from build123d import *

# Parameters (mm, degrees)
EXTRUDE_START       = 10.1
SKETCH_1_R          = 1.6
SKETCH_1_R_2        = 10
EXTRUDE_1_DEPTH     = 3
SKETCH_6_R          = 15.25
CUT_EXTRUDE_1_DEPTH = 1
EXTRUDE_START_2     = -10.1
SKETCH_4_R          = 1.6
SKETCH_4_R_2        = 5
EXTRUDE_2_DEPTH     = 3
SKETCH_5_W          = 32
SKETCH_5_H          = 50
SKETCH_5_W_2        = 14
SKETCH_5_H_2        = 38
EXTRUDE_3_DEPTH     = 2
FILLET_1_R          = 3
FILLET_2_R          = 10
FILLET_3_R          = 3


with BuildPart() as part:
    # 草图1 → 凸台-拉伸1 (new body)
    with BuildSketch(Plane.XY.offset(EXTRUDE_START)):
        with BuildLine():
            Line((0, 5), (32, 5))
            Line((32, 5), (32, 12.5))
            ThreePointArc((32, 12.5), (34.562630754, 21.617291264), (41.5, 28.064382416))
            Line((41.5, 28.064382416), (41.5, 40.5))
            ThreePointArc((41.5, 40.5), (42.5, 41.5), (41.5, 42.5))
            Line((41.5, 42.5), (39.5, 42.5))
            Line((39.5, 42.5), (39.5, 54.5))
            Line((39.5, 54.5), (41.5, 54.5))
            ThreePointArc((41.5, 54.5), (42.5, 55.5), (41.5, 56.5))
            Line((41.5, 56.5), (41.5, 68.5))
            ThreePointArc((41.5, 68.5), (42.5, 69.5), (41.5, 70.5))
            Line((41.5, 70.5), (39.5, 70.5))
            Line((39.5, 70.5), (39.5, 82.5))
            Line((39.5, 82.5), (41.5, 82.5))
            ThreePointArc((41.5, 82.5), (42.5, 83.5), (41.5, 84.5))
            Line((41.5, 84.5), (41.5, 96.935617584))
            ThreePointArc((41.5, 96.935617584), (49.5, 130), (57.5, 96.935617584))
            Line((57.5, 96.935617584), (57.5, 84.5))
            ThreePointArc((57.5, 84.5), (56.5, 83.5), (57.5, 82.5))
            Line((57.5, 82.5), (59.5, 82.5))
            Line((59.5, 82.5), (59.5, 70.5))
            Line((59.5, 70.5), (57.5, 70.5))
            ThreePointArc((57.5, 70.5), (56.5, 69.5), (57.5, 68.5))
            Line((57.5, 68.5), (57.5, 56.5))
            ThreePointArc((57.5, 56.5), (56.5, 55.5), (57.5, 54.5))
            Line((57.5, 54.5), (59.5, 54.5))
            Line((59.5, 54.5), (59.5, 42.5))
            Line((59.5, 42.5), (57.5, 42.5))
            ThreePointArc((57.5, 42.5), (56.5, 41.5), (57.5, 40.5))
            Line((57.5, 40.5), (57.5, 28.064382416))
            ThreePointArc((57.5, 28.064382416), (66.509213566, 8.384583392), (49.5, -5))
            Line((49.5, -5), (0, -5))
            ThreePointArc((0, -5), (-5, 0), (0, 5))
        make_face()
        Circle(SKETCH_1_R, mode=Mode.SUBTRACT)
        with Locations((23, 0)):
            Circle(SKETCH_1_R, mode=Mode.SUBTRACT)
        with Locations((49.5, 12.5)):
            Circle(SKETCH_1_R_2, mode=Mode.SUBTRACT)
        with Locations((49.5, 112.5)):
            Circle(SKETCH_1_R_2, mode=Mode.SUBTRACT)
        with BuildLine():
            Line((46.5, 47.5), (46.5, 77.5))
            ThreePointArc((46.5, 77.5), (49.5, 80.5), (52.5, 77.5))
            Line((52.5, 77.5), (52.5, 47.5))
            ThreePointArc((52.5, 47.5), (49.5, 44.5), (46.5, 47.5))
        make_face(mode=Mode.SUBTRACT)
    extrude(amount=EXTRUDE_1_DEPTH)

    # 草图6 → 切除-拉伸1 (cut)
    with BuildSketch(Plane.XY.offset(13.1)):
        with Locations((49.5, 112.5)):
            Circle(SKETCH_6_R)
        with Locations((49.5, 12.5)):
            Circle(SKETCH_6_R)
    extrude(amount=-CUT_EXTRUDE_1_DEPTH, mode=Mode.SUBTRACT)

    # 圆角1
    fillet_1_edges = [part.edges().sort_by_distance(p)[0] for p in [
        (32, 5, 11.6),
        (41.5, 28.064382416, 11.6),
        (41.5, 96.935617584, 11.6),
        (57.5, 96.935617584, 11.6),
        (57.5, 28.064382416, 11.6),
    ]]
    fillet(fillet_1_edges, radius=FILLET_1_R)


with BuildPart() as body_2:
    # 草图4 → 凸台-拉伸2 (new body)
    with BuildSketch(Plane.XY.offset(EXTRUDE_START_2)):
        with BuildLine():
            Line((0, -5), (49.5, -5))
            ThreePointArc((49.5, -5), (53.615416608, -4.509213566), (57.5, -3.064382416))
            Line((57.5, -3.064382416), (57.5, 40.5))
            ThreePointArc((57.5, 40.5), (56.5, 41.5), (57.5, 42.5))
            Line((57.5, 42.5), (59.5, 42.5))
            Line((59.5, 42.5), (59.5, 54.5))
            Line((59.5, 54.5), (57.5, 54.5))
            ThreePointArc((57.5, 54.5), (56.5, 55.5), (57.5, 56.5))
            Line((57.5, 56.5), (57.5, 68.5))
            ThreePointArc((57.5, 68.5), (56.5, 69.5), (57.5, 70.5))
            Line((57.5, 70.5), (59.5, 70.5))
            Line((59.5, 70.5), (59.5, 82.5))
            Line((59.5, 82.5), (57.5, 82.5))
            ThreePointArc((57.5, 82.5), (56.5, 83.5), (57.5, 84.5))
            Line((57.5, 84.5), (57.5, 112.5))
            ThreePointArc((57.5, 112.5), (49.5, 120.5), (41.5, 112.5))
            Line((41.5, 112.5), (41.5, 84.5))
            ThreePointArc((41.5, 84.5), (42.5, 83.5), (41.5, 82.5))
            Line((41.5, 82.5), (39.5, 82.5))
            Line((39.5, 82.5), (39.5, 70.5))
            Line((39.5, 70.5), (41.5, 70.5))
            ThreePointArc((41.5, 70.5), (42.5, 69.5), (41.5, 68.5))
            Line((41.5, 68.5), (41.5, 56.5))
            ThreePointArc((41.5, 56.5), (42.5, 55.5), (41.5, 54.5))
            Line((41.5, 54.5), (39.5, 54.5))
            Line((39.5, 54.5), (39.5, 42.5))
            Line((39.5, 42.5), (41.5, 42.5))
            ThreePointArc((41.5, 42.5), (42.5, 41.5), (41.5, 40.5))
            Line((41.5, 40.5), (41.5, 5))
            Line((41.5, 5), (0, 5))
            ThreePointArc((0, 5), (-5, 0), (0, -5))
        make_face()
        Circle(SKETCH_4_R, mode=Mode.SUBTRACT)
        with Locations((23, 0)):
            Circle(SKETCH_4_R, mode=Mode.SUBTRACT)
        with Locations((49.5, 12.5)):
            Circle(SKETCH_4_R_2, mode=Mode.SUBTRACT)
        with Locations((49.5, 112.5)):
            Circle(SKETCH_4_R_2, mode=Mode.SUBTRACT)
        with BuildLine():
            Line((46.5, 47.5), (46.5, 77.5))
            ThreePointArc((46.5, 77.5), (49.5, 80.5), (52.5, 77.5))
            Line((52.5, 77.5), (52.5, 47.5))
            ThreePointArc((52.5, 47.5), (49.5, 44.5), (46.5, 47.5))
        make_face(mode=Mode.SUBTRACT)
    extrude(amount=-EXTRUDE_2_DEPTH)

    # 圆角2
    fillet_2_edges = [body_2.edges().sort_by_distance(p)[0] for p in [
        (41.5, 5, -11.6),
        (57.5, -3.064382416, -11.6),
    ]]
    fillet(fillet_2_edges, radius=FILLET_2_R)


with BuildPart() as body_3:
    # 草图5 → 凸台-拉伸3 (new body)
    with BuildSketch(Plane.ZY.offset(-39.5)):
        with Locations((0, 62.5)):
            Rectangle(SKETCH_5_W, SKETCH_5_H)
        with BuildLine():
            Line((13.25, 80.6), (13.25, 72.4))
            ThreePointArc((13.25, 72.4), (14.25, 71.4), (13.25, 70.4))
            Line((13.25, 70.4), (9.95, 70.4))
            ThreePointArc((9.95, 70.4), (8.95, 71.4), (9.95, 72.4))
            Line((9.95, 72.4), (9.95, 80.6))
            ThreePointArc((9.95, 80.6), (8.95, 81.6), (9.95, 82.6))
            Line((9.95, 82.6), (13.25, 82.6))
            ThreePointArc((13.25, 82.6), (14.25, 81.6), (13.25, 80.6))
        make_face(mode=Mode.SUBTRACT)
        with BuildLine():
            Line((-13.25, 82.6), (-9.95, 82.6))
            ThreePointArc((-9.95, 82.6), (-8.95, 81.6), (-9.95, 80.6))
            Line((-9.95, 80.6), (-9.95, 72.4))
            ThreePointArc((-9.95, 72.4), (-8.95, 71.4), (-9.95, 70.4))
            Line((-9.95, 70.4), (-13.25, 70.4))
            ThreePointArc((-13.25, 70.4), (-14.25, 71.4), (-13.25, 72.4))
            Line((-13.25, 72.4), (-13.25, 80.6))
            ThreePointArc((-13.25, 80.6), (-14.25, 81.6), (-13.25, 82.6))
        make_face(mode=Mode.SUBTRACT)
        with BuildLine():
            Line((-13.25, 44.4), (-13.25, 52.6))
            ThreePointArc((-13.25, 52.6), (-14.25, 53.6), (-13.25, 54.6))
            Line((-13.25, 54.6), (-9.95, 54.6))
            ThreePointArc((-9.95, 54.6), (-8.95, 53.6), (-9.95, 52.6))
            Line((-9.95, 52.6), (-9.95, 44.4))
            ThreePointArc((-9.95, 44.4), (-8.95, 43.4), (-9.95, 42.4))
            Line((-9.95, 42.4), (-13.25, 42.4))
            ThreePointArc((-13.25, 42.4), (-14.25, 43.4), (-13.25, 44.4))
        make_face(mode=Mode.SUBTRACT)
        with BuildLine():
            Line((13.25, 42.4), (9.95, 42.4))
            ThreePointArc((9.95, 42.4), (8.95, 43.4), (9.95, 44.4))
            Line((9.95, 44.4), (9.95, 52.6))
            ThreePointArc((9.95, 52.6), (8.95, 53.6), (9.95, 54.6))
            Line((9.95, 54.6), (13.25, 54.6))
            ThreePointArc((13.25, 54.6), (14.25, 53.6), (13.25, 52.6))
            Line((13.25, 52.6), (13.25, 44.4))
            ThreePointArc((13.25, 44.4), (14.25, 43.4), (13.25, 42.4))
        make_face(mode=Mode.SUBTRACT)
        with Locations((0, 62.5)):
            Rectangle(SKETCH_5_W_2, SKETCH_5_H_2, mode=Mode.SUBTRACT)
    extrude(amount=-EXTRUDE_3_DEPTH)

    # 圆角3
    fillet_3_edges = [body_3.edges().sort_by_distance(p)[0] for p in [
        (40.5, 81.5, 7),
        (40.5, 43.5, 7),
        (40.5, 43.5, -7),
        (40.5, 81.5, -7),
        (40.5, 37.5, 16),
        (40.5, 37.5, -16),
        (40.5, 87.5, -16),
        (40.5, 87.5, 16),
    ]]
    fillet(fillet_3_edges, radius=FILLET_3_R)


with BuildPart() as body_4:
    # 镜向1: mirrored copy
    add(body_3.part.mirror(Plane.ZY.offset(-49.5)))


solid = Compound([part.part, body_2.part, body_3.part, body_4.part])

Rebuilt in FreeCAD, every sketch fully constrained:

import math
import FreeCAD as App
import Part
import Sketcher
from FreeCAD import Vector


def edges_at(feature, points):
    """Names of the edges that pass closest to the given points."""
    edges = feature.Shape.Edges
    near = lambda p: min(range(len(edges)), key=lambda i: edges[i].distToShape(Part.Vertex(*p))[0])
    return sorted({f"Edge{near(p) + 1}" for p in points})

doc = App.newDocument("Part")
params = doc.addObject("Spreadsheet::Sheet", "Params")
for row, (alias, value) in enumerate([
    ("sketch1_diameter", "20 mm"),
    ("sketch1_radius", "5 mm"),
    ("sketch1_radius2", "1 mm"),
    ("sketch1_radius3", "3 mm"),
    ("sketch1_diameter2", "3.2 mm"),
    ("pad1_length", "3 mm"),
    ("sketch2_diameter", "30.5 mm"),
    ("pocket1_length", "1 mm"),
    ("fillet_radius", "3 mm"),
    ("sketch3_diameter", "10 mm"),
    ("sketch3_radius", "1 mm"),
    ("sketch3_radius2", "8 mm"),
    ("sketch3_radius3", "3 mm"),
    ("sketch3_diameter2", "3.2 mm"),
    ("pad2_length", "3 mm"),
    ("fillet2_radius", "10 mm"),
    ("sketch4_radius", "1 mm"),
    ("sketch4_width", "50 mm"),
    ("sketch4_width2", "38 mm"),
    ("sketch4_height", "32 mm"),
    ("sketch4_height2", "14 mm"),
    ("pad3_length", "2 mm"),
    ("fillet3_radius", "3 mm"),
], start=1):
    params.set(f"A{row}", alias)
    params.set(f"B{row}", "=" + value)
    params.setAlias(f"B{row}", alias)

body = doc.addObject("PartDesign::Body", "Body")

sketch1 = body.newObject("Sketcher::SketchObject", "Sketch")
sketch1.AttachmentSupport = (doc.getObject("XY_Plane"), [""])
sketch1.MapMode = "FlatFace"
sketch1.AttachmentOffset = App.Placement(Vector(0, 0, 10.1), App.Rotation())
sketch1.addGeometry([
    Part.LineSegment(Vector(32, 5, 0), Vector(0, 5, 0)),
    Part.ArcOfCircle(Part.Circle(Vector(0, 0, 0), Vector(0, 0, 1), 5), math.radians(90), math.radians(270)),
    Part.LineSegment(Vector(0, -5, 0), Vector(49.5, -5, 0)),
    Part.ArcOfCircle(Part.Circle(Vector(49.5, 12.5, 0), Vector(0, 0, 1), 17.5), math.radians(-90), math.radians(63)),
    Part.LineSegment(Vector(57.5, 28.1, 0), Vector(57.5, 40.5, 0)),
    Part.ArcOfCircle(Part.Circle(Vector(57.5, 41.5, 0), Vector(0, 0, 1), 1), math.radians(90), math.radians(270)),
    Part.LineSegment(Vector(57.5, 42.5, 0), Vector(59.5, 42.5, 0)),
    Part.LineSegment(Vector(59.5, 42.5, 0), Vector(59.5, 54.5, 0)),
    Part.LineSegment(Vector(59.5, 54.5, 0), Vector(57.5, 54.5, 0)),
    Part.ArcOfCircle(Part.Circle(Vector(57.5, 55.5, 0), Vector(0, 0, 1), 1), math.radians(90), math.radians(270)),
    Part.LineSegment(Vector(57.5, 56.5, 0), Vector(57.5, 68.5, 0)),
    Part.ArcOfCircle(Part.Circle(Vector(57.5, 69.5, 0), Vector(0, 0, 1), 1), math.radians(90), math.radians(270)),
    Part.LineSegment(Vector(57.5, 70.5, 0), Vector(59.5, 70.5, 0)),
    Part.LineSegment(Vector(59.5, 70.5, 0), Vector(59.5, 82.5, 0)),
    Part.LineSegment(Vector(59.5, 82.5, 0), Vector(57.5, 82.5, 0)),
    Part.ArcOfCircle(Part.Circle(Vector(57.5, 83.5, 0), Vector(0, 0, 1), 1), math.radians(90), math.radians(270)),
    Part.LineSegment(Vector(57.5, 84.5, 0), Vector(57.5, 96.9, 0)),
    Part.ArcOfCircle(Part.Circle(Vector(49.5, 112.5, 0), Vector(0, 0, 1), 17.5), math.radians(-63), math.radians(243)),
    Part.LineSegment(Vector(41.5, 96.9, 0), Vector(41.5, 84.5, 0)),
    Part.ArcOfCircle(Part.Circle(Vector(41.5, 83.5, 0), Vector(0, 0, 1), 1), math.radians(-90), math.radians(90)),
    Part.LineSegment(Vector(41.5, 82.5, 0), Vector(39.5, 82.5, 0)),
    Part.LineSegment(Vector(39.5, 82.5, 0), Vector(39.5, 70.5, 0)),
    Part.LineSegment(Vector(39.5, 70.5, 0), Vector(41.5, 70.5, 0)),
    Part.ArcOfCircle(Part.Circle(Vector(41.5, 69.5, 0), Vector(0, 0, 1), 1), math.radians(-90), math.radians(90)),
    Part.LineSegment(Vector(41.5, 68.5, 0), Vector(41.5, 56.5, 0)),
    Part.ArcOfCircle(Part.Circle(Vector(41.5, 55.5, 0), Vector(0, 0, 1), 1), math.radians(-90), math.radians(90)),
    Part.LineSegment(Vector(41.5, 54.5, 0), Vector(39.5, 54.5, 0)),
    Part.LineSegment(Vector(39.5, 54.5, 0), Vector(39.5, 42.5, 0)),
    Part.LineSegment(Vector(39.5, 42.5, 0), Vector(41.5, 42.5, 0)),
    Part.ArcOfCircle(Part.Circle(Vector(41.5, 41.5, 0), Vector(0, 0, 1), 1), math.radians(-90), math.radians(90)),
    Part.LineSegment(Vector(41.5, 40.5, 0), Vector(41.5, 28.1, 0)),
    Part.ArcOfCircle(Part.Circle(Vector(49.5, 12.5, 0), Vector(0, 0, 1), 17.5), math.radians(117), math.radians(180)),
    Part.LineSegment(Vector(32, 12.5, 0), Vector(32, 5, 0)),
    Part.Circle(Vector(49.5, 12.5, 0), Vector(0, 0, 1), 10),
    Part.Circle(Vector(23, 0, 0), Vector(0, 0, 1), 1.6),
    Part.Circle(Vector(0, 0, 0), Vector(0, 0, 1), 1.6),
    Part.LineSegment(Vector(46.5, 47.5, 0), Vector(46.5, 77.5, 0)),
    Part.ArcOfCircle(Part.Circle(Vector(49.5, 77.5, 0), Vector(0, 0, 1), 3), math.radians(0), math.radians(180)),
    Part.LineSegment(Vector(52.5, 77.5, 0), Vector(52.5, 47.5, 0)),
    Part.ArcOfCircle(Part.Circle(Vector(49.5, 47.5, 0), Vector(0, 0, 1), 3), math.radians(180), math.radians(360)),
    Part.Circle(Vector(49.5, 112.5, 0), Vector(0, 0, 1), 10),
], False)
sketch1.addConstraint([
    Sketcher.Constraint("Tangent", 0, 2, 1, 1),
    Sketcher.Constraint("Tangent", 1, 2, 2, 1),
    Sketcher.Constraint("Tangent", 2, 2, 3, 1),
    Sketcher.Constraint("Coincident", 3, 2, 4, 1),
    Sketcher.Constraint("Coincident", 4, 2, 5, 2),
    Sketcher.Constraint("Tangent", 5, 1, 6, 1),
    Sketcher.Constraint("Coincident", 6, 2, 7, 1),
    Sketcher.Constraint("Coincident", 7, 2, 8, 1),
    Sketcher.Constraint("Tangent", 8, 2, 9, 2),
    Sketcher.Constraint("Coincident", 9, 1, 10, 1),
    Sketcher.Constraint("Coincident", 10, 2, 11, 2),
    Sketcher.Constraint("Tangent", 11, 1, 12, 1),
    Sketcher.Constraint("Coincident", 12, 2, 13, 1),
    Sketcher.Constraint("Coincident", 13, 2, 14, 1),
    Sketcher.Constraint("Tangent", 14, 2, 15, 2),
    Sketcher.Constraint("Coincident", 15, 1, 16, 1),
    Sketcher.Constraint("Coincident", 16, 2, 17, 1),
    Sketcher.Constraint("Coincident", 17, 2, 18, 1),
    Sketcher.Constraint("Coincident", 18, 2, 19, 2),
    Sketcher.Constraint("Tangent", 19, 1, 20, 1),
    Sketcher.Constraint("Coincident", 20, 2, 21, 1),
    Sketcher.Constraint("Coincident", 21, 2, 22, 1),
    Sketcher.Constraint("Tangent", 22, 2, 23, 2),
    Sketcher.Constraint("Coincident", 23, 1, 24, 1),
    Sketcher.Constraint("Coincident", 24, 2, 25, 2),
    Sketcher.Constraint("Tangent", 25, 1, 26, 1),
    Sketcher.Constraint("Coincident", 26, 2, 27, 1),
    Sketcher.Constraint("Coincident", 27, 2, 28, 1),
    Sketcher.Constraint("Tangent", 28, 2, 29, 2),
    Sketcher.Constraint("Coincident", 29, 1, 30, 1),
    Sketcher.Constraint("Coincident", 30, 2, 31, 1),
    Sketcher.Constraint("Tangent", 31, 2, 32, 1),
    Sketcher.Constraint("Coincident", 32, 2, 0, 1),
    Sketcher.Constraint("Tangent", 36, 2, 37, 2),
    Sketcher.Constraint("Tangent", 37, 1, 38, 1),
    Sketcher.Constraint("Tangent", 38, 2, 39, 2),
    Sketcher.Constraint("Tangent", 39, 1, 36, 1),
    Sketcher.Constraint("Horizontal", 0),
    Sketcher.Constraint("Horizontal", 2),
    Sketcher.Constraint("Vertical", 4),
    Sketcher.Constraint("Horizontal", 6),
    Sketcher.Constraint("Vertical", 7),
    Sketcher.Constraint("Horizontal", 8),
    Sketcher.Constraint("Vertical", 10),
    Sketcher.Constraint("Horizontal", 12),
    Sketcher.Constraint("Vertical", 13),
    Sketcher.Constraint("Horizontal", 14),
    Sketcher.Constraint("Vertical", 16),
    Sketcher.Constraint("Vertical", 18),
    Sketcher.Constraint("Horizontal", 20),
    Sketcher.Constraint("Vertical", 21),
    Sketcher.Constraint("Horizontal", 22),
    Sketcher.Constraint("Vertical", 24),
    Sketcher.Constraint("Horizontal", 26),
    Sketcher.Constraint("Vertical", 27),
    Sketcher.Constraint("Horizontal", 28),
    Sketcher.Constraint("Vertical", 30),
    Sketcher.Constraint("Vertical", 32),
    Sketcher.Constraint("Vertical", 36),
    Sketcher.Constraint("Vertical", 38),
    Sketcher.Constraint("Coincident", 1, 3, -1, 1),
    Sketcher.Constraint("Coincident", 35, 3, -1, 1),
    Sketcher.Constraint("Coincident", 31, 3, 3, 3),
    Sketcher.Constraint("Coincident", 33, 3, 3, 3),
    Sketcher.Constraint("Coincident", 40, 3, 17, 3),
    Sketcher.Constraint("Equal", 5, 9),
    Sketcher.Constraint("Equal", 9, 11),
    Sketcher.Constraint("Equal", 11, 15),
    Sketcher.Constraint("Equal", 3, 17),
    Sketcher.Constraint("Equal", 15, 19),
    Sketcher.Constraint("Equal", 19, 23),
    Sketcher.Constraint("Equal", 23, 25),
    Sketcher.Constraint("Equal", 25, 29),
    Sketcher.Constraint("Equal", 17, 31),
    Sketcher.Constraint("Equal", 34, 35),
    Sketcher.Constraint("Equal", 33, 40),
    Sketcher.Constraint("PointOnObject", 34, 3, -1),
    Sketcher.Constraint("Horizontal", 15, 3, 19, 3),
    Sketcher.Constraint("Horizontal", 11, 3, 23, 3),
    Sketcher.Constraint("Horizontal", 9, 3, 25, 3),
    Sketcher.Constraint("Horizontal", 5, 3, 29, 3),
    Sketcher.Constraint("Horizontal", 16, 2, 17, 2),
    Sketcher.Constraint("Horizontal", 3, 2, 30, 2),
    Sketcher.Constraint("Vertical", 5, 3, 9, 3),
    Sketcher.Constraint("Vertical", 9, 3, 11, 3),
    Sketcher.Constraint("Vertical", 11, 3, 15, 3),
    Sketcher.Constraint("Vertical", 3, 3, 17, 3),
    Sketcher.Constraint("Vertical", 19, 3, 23, 3),
    Sketcher.Constraint("Vertical", 23, 3, 25, 3),
    Sketcher.Constraint("Vertical", 25, 3, 29, 3),
    Sketcher.Constraint("Vertical", 33, 3, 37, 3),
    Sketcher.Constraint("Vertical", 15, 3, 3, 2),
    Sketcher.Constraint("Vertical", 8, 2, 9, 1),
    Sketcher.Constraint("Vertical", 7, 2, 12, 2),
    Sketcher.Constraint("Vertical", 14, 2, 15, 1),
    Sketcher.Constraint("Vertical", 29, 3, 17, 2),
    Sketcher.Constraint("Vertical", 22, 2, 23, 1),
    Sketcher.Constraint("Vertical", 21, 2, 26, 2),
    Sketcher.Constraint("Equal", 14, 20),
    Sketcher.Constraint("Equal", 7, 10),
    Sketcher.Constraint("Equal", 10, 13),
    Sketcher.Constraint("Equal", 4, 16),
    Sketcher.Constraint("Diameter", 33, 20.0),
    Sketcher.Constraint("Radius", 1, 5.0),
    Sketcher.Constraint("Radius", 5, 1.0),
    Sketcher.Constraint("Radius", 37, 3.0),
    Sketcher.Constraint("Diameter", 34, 3.2),
    Sketcher.Constraint("Radius", 3, 17.5),
    Sketcher.Constraint("DistanceX", 0, 2, 0, 1, 32.0),
    Sketcher.Constraint("DistanceX", 6, 1, 6, 2, 2.0),
    Sketcher.Constraint("DistanceY", 7, 1, 7, 2, 12.0),
    Sketcher.Constraint("DistanceY", 36, 1, 36, 2, 30.0),
    Sketcher.Constraint("DistanceX", -1, 1, 34, 3, 23.0),
    Sketcher.Constraint("DistanceX", 3, 3, 5, 3, 8.0),
    Sketcher.Constraint("DistanceY", 3, 3, 5, 3, 29.0),
    Sketcher.Constraint("DistanceY", 37, 3, 15, 3, 6.0),
])
sketch1.setExpression("Constraints[102]", "Params.sketch1_diameter")
sketch1.setExpression("Constraints[103]", "Params.sketch1_radius")
sketch1.setExpression("Constraints[104]", "Params.sketch1_radius2")
sketch1.setExpression("Constraints[105]", "Params.sketch1_radius3")
sketch1.setExpression("Constraints[106]", "Params.sketch1_diameter2")
pad1 = body.newObject("PartDesign::Pad", "Pad")
pad1.Profile = sketch1
pad1.setExpression("Length", "Params.pad1_length")

sketch2 = body.newObject("Sketcher::SketchObject", "Sketch001")
sketch2.AttachmentSupport = (doc.getObject("XY_Plane"), [""])
sketch2.MapMode = "FlatFace"
sketch2.AttachmentOffset = App.Placement(Vector(0, 0, 13.1), App.Rotation())
sketch2.addGeometry([
    Part.Circle(Vector(50, 112, 0), Vector(0, 0, 1), 15),
    Part.Circle(Vector(50, 12, 0), Vector(0, 0, 1), 15),
], False)
sketch2.addConstraint([
    Sketcher.Constraint("Equal", 0, 1),
    Sketcher.Constraint("Vertical", 0, 3, 1, 3),
    Sketcher.Constraint("Diameter", 0, 30.5),
    Sketcher.Constraint("DistanceY", 1, 3, 0, 3, 100.0),
    Sketcher.Constraint("DistanceX", -1, 1, 0, 3, 49.5),
    Sketcher.Constraint("DistanceY", -1, 1, 0, 3, 112.5),
])
sketch2.setExpression("Constraints[2]", "Params.sketch2_diameter")
pocket1 = body.newObject("PartDesign::Pocket", "Pocket")
pocket1.Profile = sketch2
pocket1.setExpression("Length", "Params.pocket1_length")
doc.recompute()

fillet = body.newObject("PartDesign::Fillet", "Fillet")
fillet.Base = (pocket1, edges_at(pocket1, [
    (32, 5, 11.6),
    (41.5, 28.064, 11.6),
    (41.5, 96.936, 11.6),
    (57.5, 96.936, 11.6),
    (57.5, 28.064, 11.6),
]))
fillet.setExpression("Radius", "Params.fillet_radius")
body2 = doc.addObject("PartDesign::Body", "Body001")

sketch3 = body2.newObject("Sketcher::SketchObject", "Sketch002")
sketch3.AttachmentSupport = (doc.getObject("XY_Plane001"), [""])
sketch3.MapMode = "FlatFace"
sketch3.AttachmentOffset = App.Placement(Vector(0, 0, -10.1), App.Rotation())
sketch3.addGeometry([
    Part.LineSegment(Vector(0, -5, 0), Vector(49.5, -5, 0)),
    Part.ArcOfCircle(Part.Circle(Vector(49.5, 12.5, 0), Vector(0, 0, 1), 17.5), math.radians(-90), math.radians(-63)),
    Part.LineSegment(Vector(57.5, -3.1, 0), Vector(57.5, 40.5, 0)),
    Part.ArcOfCircle(Part.Circle(Vector(57.5, 41.5, 0), Vector(0, 0, 1), 1), math.radians(90), math.radians(270)),
    Part.LineSegment(Vector(57.5, 42.5, 0), Vector(59.5, 42.5, 0)),
    Part.LineSegment(Vector(59.5, 42.5, 0), Vector(59.5, 54.5, 0)),
    Part.LineSegment(Vector(59.5, 54.5, 0), Vector(57.5, 54.5, 0)),
    Part.ArcOfCircle(Part.Circle(Vector(57.5, 55.5, 0), Vector(0, 0, 1), 1), math.radians(90), math.radians(270)),
    Part.LineSegment(Vector(57.5, 56.5, 0), Vector(57.5, 68.5, 0)),
    Part.ArcOfCircle(Part.Circle(Vector(57.5, 69.5, 0), Vector(0, 0, 1), 1), math.radians(90), math.radians(270)),
    Part.LineSegment(Vector(57.5, 70.5, 0), Vector(59.5, 70.5, 0)),
    Part.LineSegment(Vector(59.5, 70.5, 0), Vector(59.5, 82.5, 0)),
    Part.LineSegment(Vector(59.5, 82.5, 0), Vector(57.5, 82.5, 0)),
    Part.ArcOfCircle(Part.Circle(Vector(57.5, 83.5, 0), Vector(0, 0, 1), 1), math.radians(90), math.radians(270)),
    Part.LineSegment(Vector(57.5, 84.5, 0), Vector(57.5, 112.5, 0)),
    Part.ArcOfCircle(Part.Circle(Vector(49.5, 112.5, 0), Vector(0, 0, 1), 8), math.radians(0), math.radians(180)),
    Part.LineSegment(Vector(41.5, 112.5, 0), Vector(41.5, 84.5, 0)),
    Part.ArcOfCircle(Part.Circle(Vector(41.5, 83.5, 0), Vector(0, 0, 1), 1), math.radians(-90), math.radians(90)),
    Part.LineSegment(Vector(41.5, 82.5, 0), Vector(39.5, 82.5, 0)),
    Part.LineSegment(Vector(39.5, 82.5, 0), Vector(39.5, 70.5, 0)),
    Part.LineSegment(Vector(39.5, 70.5, 0), Vector(41.5, 70.5, 0)),
    Part.ArcOfCircle(Part.Circle(Vector(41.5, 69.5, 0), Vector(0, 0, 1), 1), math.radians(-90), math.radians(90)),
    Part.LineSegment(Vector(41.5, 68.5, 0), Vector(41.5, 56.5, 0)),
    Part.ArcOfCircle(Part.Circle(Vector(41.5, 55.5, 0), Vector(0, 0, 1), 1), math.radians(-90), math.radians(90)),
    Part.LineSegment(Vector(41.5, 54.5, 0), Vector(39.5, 54.5, 0)),
    Part.LineSegment(Vector(39.5, 54.5, 0), Vector(39.5, 42.5, 0)),
    Part.LineSegment(Vector(39.5, 42.5, 0), Vector(41.5, 42.5, 0)),
    Part.ArcOfCircle(Part.Circle(Vector(41.5, 41.5, 0), Vector(0, 0, 1), 1), math.radians(-90), math.radians(90)),
    Part.LineSegment(Vector(41.5, 40.5, 0), Vector(41.5, 5, 0)),
    Part.LineSegment(Vector(41.5, 5, 0), Vector(0, 5, 0)),
    Part.ArcOfCircle(Part.Circle(Vector(0, 0, 0), Vector(0, 0, 1), 5), math.radians(90), math.radians(270)),
    Part.Circle(Vector(0, 0, 0), Vector(0, 0, 1), 1.6),
    Part.Circle(Vector(23, 0, 0), Vector(0, 0, 1), 1.6),
    Part.Circle(Vector(49.5, 12.5, 0), Vector(0, 0, 1), 5),
    Part.ArcOfCircle(Part.Circle(Vector(49.5, 47.5, 0), Vector(0, 0, 1), 3), math.radians(180), math.radians(360)),
    Part.LineSegment(Vector(46.5, 47.5, 0), Vector(46.5, 77.5, 0)),
    Part.ArcOfCircle(Part.Circle(Vector(49.5, 77.5, 0), Vector(0, 0, 1), 3), math.radians(0), math.radians(180)),
    Part.LineSegment(Vector(52.5, 77.5, 0), Vector(52.5, 47.5, 0)),
    Part.Circle(Vector(49.5, 112.5, 0), Vector(0, 0, 1), 5),
], False)
sketch3.addConstraint([
    Sketcher.Constraint("Tangent", 0, 2, 1, 1),
    Sketcher.Constraint("Coincident", 1, 2, 2, 1),
    Sketcher.Constraint("Coincident", 2, 2, 3, 2),
    Sketcher.Constraint("Tangent", 3, 1, 4, 1),
    Sketcher.Constraint("Coincident", 4, 2, 5, 1),
    Sketcher.Constraint("Coincident", 5, 2, 6, 1),
    Sketcher.Constraint("Tangent", 6, 2, 7, 2),
    Sketcher.Constraint("Coincident", 7, 1, 8, 1),
    Sketcher.Constraint("Coincident", 8, 2, 9, 2),
    Sketcher.Constraint("Tangent", 9, 1, 10, 1),
    Sketcher.Constraint("Coincident", 10, 2, 11, 1),
    Sketcher.Constraint("Coincident", 11, 2, 12, 1),
    Sketcher.Constraint("Tangent", 12, 2, 13, 2),
    Sketcher.Constraint("Coincident", 13, 1, 14, 1),
    Sketcher.Constraint("Tangent", 14, 2, 15, 1),
    Sketcher.Constraint("Tangent", 15, 2, 16, 1),
    Sketcher.Constraint("Coincident", 16, 2, 17, 2),
    Sketcher.Constraint("Tangent", 17, 1, 18, 1),
    Sketcher.Constraint("Coincident", 18, 2, 19, 1),
    Sketcher.Constraint("Coincident", 19, 2, 20, 1),
    Sketcher.Constraint("Tangent", 20, 2, 21, 2),
    Sketcher.Constraint("Coincident", 21, 1, 22, 1),
    Sketcher.Constraint("Coincident", 22, 2, 23, 2),
    Sketcher.Constraint("Tangent", 23, 1, 24, 1),
    Sketcher.Constraint("Coincident", 24, 2, 25, 1),
    Sketcher.Constraint("Coincident", 25, 2, 26, 1),
    Sketcher.Constraint("Tangent", 26, 2, 27, 2),
    Sketcher.Constraint("Coincident", 27, 1, 28, 1),
    Sketcher.Constraint("Coincident", 28, 2, 29, 1),
    Sketcher.Constraint("Tangent", 29, 2, 30, 1),
    Sketcher.Constraint("Tangent", 30, 2, 0, 1),
    Sketcher.Constraint("Tangent", 34, 1, 35, 1),
    Sketcher.Constraint("Tangent", 35, 2, 36, 2),
    Sketcher.Constraint("Tangent", 36, 1, 37, 1),
    Sketcher.Constraint("Tangent", 37, 2, 34, 2),
    Sketcher.Constraint("Horizontal", 0),
    Sketcher.Constraint("Vertical", 2),
    Sketcher.Constraint("Horizontal", 4),
    Sketcher.Constraint("Vertical", 5),
    Sketcher.Constraint("Horizontal", 6),
    Sketcher.Constraint("Vertical", 8),
    Sketcher.Constraint("Horizontal", 10),
    Sketcher.Constraint("Vertical", 11),
    Sketcher.Constraint("Horizontal", 12),
    Sketcher.Constraint("Vertical", 14),
    Sketcher.Constraint("Vertical", 16),
    Sketcher.Constraint("Horizontal", 18),
    Sketcher.Constraint("Vertical", 19),
    Sketcher.Constraint("Horizontal", 20),
    Sketcher.Constraint("Vertical", 22),
    Sketcher.Constraint("Horizontal", 24),
    Sketcher.Constraint("Vertical", 25),
    Sketcher.Constraint("Horizontal", 26),
    Sketcher.Constraint("Vertical", 28),
    Sketcher.Constraint("Horizontal", 29),
    Sketcher.Constraint("Vertical", 35),
    Sketcher.Constraint("Vertical", 37),
    Sketcher.Constraint("Coincident", 30, 3, -1, 1),
    Sketcher.Constraint("Coincident", 31, 3, -1, 1),
    Sketcher.Constraint("Coincident", 33, 3, 1, 3),
    Sketcher.Constraint("Coincident", 38, 3, 15, 3),
    Sketcher.Constraint("Equal", 3, 7),
    Sketcher.Constraint("Equal", 7, 9),
    Sketcher.Constraint("Equal", 9, 13),
    Sketcher.Constraint("Equal", 13, 17),
    Sketcher.Constraint("Equal", 17, 21),
    Sketcher.Constraint("Equal", 21, 23),
    Sketcher.Constraint("Equal", 23, 27),
    Sketcher.Constraint("Equal", 31, 32),
    Sketcher.Constraint("Equal", 30, 33),
    Sketcher.Constraint("Equal", 33, 38),
    Sketcher.Constraint("PointOnObject", 32, 3, -1),
    Sketcher.Constraint("Horizontal", 13, 3, 17, 3),
    Sketcher.Constraint("Horizontal", 9, 3, 21, 3),
    Sketcher.Constraint("Horizontal", 7, 3, 23, 3),
    Sketcher.Constraint("Horizontal", 3, 3, 27, 3),
    Sketcher.Constraint("Vertical", 3, 3, 7, 3),
    Sketcher.Constraint("Vertical", 7, 3, 9, 3),
    Sketcher.Constraint("Vertical", 9, 3, 13, 3),
    Sketcher.Constraint("Vertical", 1, 3, 15, 3),
    Sketcher.Constraint("Vertical", 17, 3, 21, 3),
    Sketcher.Constraint("Vertical", 21, 3, 23, 3),
    Sketcher.Constraint("Vertical", 23, 3, 27, 3),
    Sketcher.Constraint("Vertical", 33, 3, 34, 3),
    Sketcher.Constraint("Vertical", 13, 3, 1, 2),
    Sketcher.Constraint("Vertical", 6, 2, 7, 1),
    Sketcher.Constraint("Vertical", 5, 2, 10, 2),
    Sketcher.Constraint("Vertical", 12, 2, 13, 1),
    Sketcher.Constraint("Vertical", 27, 3, 15, 2),
    Sketcher.Constraint("Vertical", 20, 2, 21, 1),
    Sketcher.Constraint("Vertical", 19, 2, 24, 2),
    Sketcher.Constraint("Vertical", 26, 2, 27, 1),
    Sketcher.Constraint("Equal", 12, 18),
    Sketcher.Constraint("Equal", 5, 8),
    Sketcher.Constraint("Equal", 8, 11),
    Sketcher.Constraint("Diameter", 33, 10.0),
    Sketcher.Constraint("Radius", 3, 1.0),
    Sketcher.Constraint("Radius", 15, 8.0),
    Sketcher.Constraint("Radius", 34, 3.0),
    Sketcher.Constraint("Diameter", 31, 3.2),
    Sketcher.Constraint("Radius", 1, 17.5),
    Sketcher.Constraint("DistanceX", 4, 1, 4, 2, 2.0),
    Sketcher.Constraint("DistanceY", 5, 1, 5, 2, 12.0),
    Sketcher.Constraint("DistanceY", 14, 1, 14, 2, 28.0),
    Sketcher.Constraint("DistanceY", 35, 1, 35, 2, 30.0),
    Sketcher.Constraint("DistanceX", 0, 1, 0, 2, 49.5),
    Sketcher.Constraint("DistanceY", 28, 2, 28, 1, 35.5),
    Sketcher.Constraint("DistanceX", -1, 1, 32, 3, 23.0),
    Sketcher.Constraint("DistanceY", 3, 3, 34, 3, 6.0),
])
sketch3.setExpression("Constraints[95]", "Params.sketch3_diameter")
sketch3.setExpression("Constraints[96]", "Params.sketch3_radius")
sketch3.setExpression("Constraints[97]", "Params.sketch3_radius2")
sketch3.setExpression("Constraints[98]", "Params.sketch3_radius3")
sketch3.setExpression("Constraints[99]", "Params.sketch3_diameter2")
pad2 = body2.newObject("PartDesign::Pad", "Pad001")
pad2.Profile = sketch3
pad2.setExpression("Length", "Params.pad2_length")
pad2.Reversed = True
doc.recompute()

fillet2 = body2.newObject("PartDesign::Fillet", "Fillet001")
fillet2.Base = (pad2, edges_at(pad2, [(41.5, 5, -11.6), (57.5, -3.064, -11.6)]))
fillet2.setExpression("Radius", "Params.fillet2_radius")
body3 = doc.addObject("PartDesign::Body", "Body002")

sketch4 = body3.newObject("Sketcher::SketchObject", "Sketch003")
sketch4.AttachmentSupport = (doc.getObject("YZ_Plane002"), [""])
sketch4.MapMode = "FlatFace"
sketch4.AttachmentOffset = App.Placement(Vector(0, 0, 39.5), App.Rotation())
sketch4.addGeometry([
    Part.LineSegment(Vector(87.5, -16, 0), Vector(37.5, -16, 0)),
    Part.LineSegment(Vector(37.5, -16, 0), Vector(37.5, 16, 0)),
    Part.LineSegment(Vector(37.5, 16, 0), Vector(87.5, 16, 0)),
    Part.LineSegment(Vector(87.5, 16, 0), Vector(87.5, -16, 0)),
    Part.ArcOfCircle(Part.Circle(Vector(43.4, -13.2, 0), Vector(0, 0, 1), 1), math.radians(180), math.radians(360)),
    Part.LineSegment(Vector(44.4, -13.2, 0), Vector(52.6, -13.2, 0)),
    Part.ArcOfCircle(Part.Circle(Vector(53.6, -13.2, 0), Vector(0, 0, 1), 1), math.radians(180), math.radians(360)),
    Part.LineSegment(Vector(54.6, -13.2, 0), Vector(54.6, -9.9, 0)),
    Part.ArcOfCircle(Part.Circle(Vector(53.6, -9.9, 0), Vector(0, 0, 1), 1), math.radians(0), math.radians(180)),
    Part.LineSegment(Vector(52.6, -9.9, 0), Vector(44.4, -9.9, 0)),
    Part.ArcOfCircle(Part.Circle(Vector(43.4, -9.9, 0), Vector(0, 0, 1), 1), math.radians(0), math.radians(180)),
    Part.LineSegment(Vector(42.4, -9.9, 0), Vector(42.4, -13.2, 0)),
    Part.ArcOfCircle(Part.Circle(Vector(43.4, 13.2, 0), Vector(0, 0, 1), 1), math.radians(0), math.radians(180)),
    Part.LineSegment(Vector(42.4, 13.2, 0), Vector(42.4, 9.9, 0)),
    Part.ArcOfCircle(Part.Circle(Vector(43.4, 9.9, 0), Vector(0, 0, 1), 1), math.radians(180), math.radians(360)),
    Part.LineSegment(Vector(44.4, 9.9, 0), Vector(52.6, 9.9, 0)),
    Part.ArcOfCircle(Part.Circle(Vector(53.6, 9.9, 0), Vector(0, 0, 1), 1), math.radians(180), math.radians(360)),
    Part.LineSegment(Vector(54.6, 9.9, 0), Vector(54.6, 13.2, 0)),
    Part.ArcOfCircle(Part.Circle(Vector(53.6, 13.2, 0), Vector(0, 0, 1), 1), math.radians(0), math.radians(180)),
    Part.LineSegment(Vector(52.6, 13.2, 0), Vector(44.4, 13.2, 0)),
    Part.ArcOfCircle(Part.Circle(Vector(81.6, -13.2, 0), Vector(0, 0, 1), 1), math.radians(180), math.radians(360)),
    Part.LineSegment(Vector(82.6, -13.2, 0), Vector(82.6, -9.9, 0)),
    Part.ArcOfCircle(Part.Circle(Vector(81.6, -9.9, 0), Vector(0, 0, 1), 1), math.radians(0), math.radians(180)),
    Part.LineSegment(Vector(80.6, -9.9, 0), Vector(72.4, -9.9, 0)),
    Part.ArcOfCircle(Part.Circle(Vector(71.4, -9.9, 0), Vector(0, 0, 1), 1), math.radians(0), math.radians(180)),
    Part.LineSegment(Vector(70.4, -9.9, 0), Vector(70.4, -13.2, 0)),
    Part.ArcOfCircle(Part.Circle(Vector(71.4, -13.2, 0), Vector(0, 0, 1), 1), math.radians(180), math.radians(360)),
    Part.LineSegment(Vector(72.4, -13.2, 0), Vector(80.6, -13.2, 0)),
    Part.LineSegment(Vector(43.5, 7, 0), Vector(43.5, -7, 0)),
    Part.LineSegment(Vector(43.5, -7, 0), Vector(81.5, -7, 0)),
    Part.LineSegment(Vector(81.5, -7, 0), Vector(81.5, 7, 0)),
    Part.LineSegment(Vector(81.5, 7, 0), Vector(43.5, 7, 0)),
    Part.ArcOfCircle(Part.Circle(Vector(81.6, 13.2, 0), Vector(0, 0, 1), 1), math.radians(0), math.radians(180)),
    Part.LineSegment(Vector(80.6, 13.2, 0), Vector(72.4, 13.2, 0)),
    Part.ArcOfCircle(Part.Circle(Vector(71.4, 13.2, 0), Vector(0, 0, 1), 1), math.radians(0), math.radians(180)),
    Part.LineSegment(Vector(70.4, 13.2, 0), Vector(70.4, 9.9, 0)),
    Part.ArcOfCircle(Part.Circle(Vector(71.4, 9.9, 0), Vector(0, 0, 1), 1), math.radians(180), math.radians(360)),
    Part.LineSegment(Vector(72.4, 9.9, 0), Vector(80.6, 9.9, 0)),
    Part.ArcOfCircle(Part.Circle(Vector(81.6, 9.9, 0), Vector(0, 0, 1), 1), math.radians(180), math.radians(360)),
    Part.LineSegment(Vector(82.6, 9.9, 0), Vector(82.6, 13.2, 0)),
], False)
sketch4.addConstraint([
    Sketcher.Constraint("Coincident", 0, 2, 1, 1),
    Sketcher.Constraint("Coincident", 1, 2, 2, 1),
    Sketcher.Constraint("Coincident", 2, 2, 3, 1),
    Sketcher.Constraint("Coincident", 3, 2, 0, 1),
    Sketcher.Constraint("Coincident", 4, 2, 5, 1),
    Sketcher.Constraint("Coincident", 5, 2, 6, 1),
    Sketcher.Constraint("Tangent", 6, 2, 7, 1),
    Sketcher.Constraint("Tangent", 7, 2, 8, 1),
    Sketcher.Constraint("Coincident", 8, 2, 9, 1),
    Sketcher.Constraint("Coincident", 9, 2, 10, 1),
    Sketcher.Constraint("Tangent", 10, 2, 11, 1),
    Sketcher.Constraint("Tangent", 11, 2, 4, 1),
    Sketcher.Constraint("Tangent", 12, 2, 13, 1),
    Sketcher.Constraint("Tangent", 13, 2, 14, 1),
    Sketcher.Constraint("Coincident", 14, 2, 15, 1),
    Sketcher.Constraint("Coincident", 15, 2, 16, 1),
    Sketcher.Constraint("Tangent", 16, 2, 17, 1),
    Sketcher.Constraint("Tangent", 17, 2, 18, 1),
    Sketcher.Constraint("Coincident", 18, 2, 19, 1),
    Sketcher.Constraint("Coincident", 19, 2, 12, 1),
    Sketcher.Constraint("Tangent", 20, 2, 21, 1),
    Sketcher.Constraint("Tangent", 21, 2, 22, 1),
    Sketcher.Constraint("Coincident", 22, 2, 23, 1),
    Sketcher.Constraint("Coincident", 23, 2, 24, 1),
    Sketcher.Constraint("Tangent", 24, 2, 25, 1),
    Sketcher.Constraint("Tangent", 25, 2, 26, 1),
    Sketcher.Constraint("Coincident", 26, 2, 27, 1),
    Sketcher.Constraint("Coincident", 27, 2, 20, 1),
    Sketcher.Constraint("Coincident", 28, 2, 29, 1),
    Sketcher.Constraint("Coincident", 29, 2, 30, 1),
    Sketcher.Constraint("Coincident", 30, 2, 31, 1),
    Sketcher.Constraint("Coincident", 31, 2, 28, 1),
    Sketcher.Constraint("Coincident", 32, 2, 33, 1),
    Sketcher.Constraint("Coincident", 33, 2, 34, 1),
    Sketcher.Constraint("Tangent", 34, 2, 35, 1),
    Sketcher.Constraint("Tangent", 35, 2, 36, 1),
    Sketcher.Constraint("Coincident", 36, 2, 37, 1),
    Sketcher.Constraint("Coincident", 37, 2, 38, 1),
    Sketcher.Constraint("Tangent", 38, 2, 39, 1),
    Sketcher.Constraint("Tangent", 39, 2, 32, 1),
    Sketcher.Constraint("Horizontal", 0),
    Sketcher.Constraint("Vertical", 1),
    Sketcher.Constraint("Horizontal", 2),
    Sketcher.Constraint("Vertical", 3),
    Sketcher.Constraint("Horizontal", 5),
    Sketcher.Constraint("Vertical", 7),
    Sketcher.Constraint("Horizontal", 9),
    Sketcher.Constraint("Vertical", 11),
    Sketcher.Constraint("Vertical", 13),
    Sketcher.Constraint("Horizontal", 15),
    Sketcher.Constraint("Vertical", 17),
    Sketcher.Constraint("Horizontal", 19),
    Sketcher.Constraint("Vertical", 21),
    Sketcher.Constraint("Horizontal", 23),
    Sketcher.Constraint("Vertical", 25),
    Sketcher.Constraint("Horizontal", 27),
    Sketcher.Constraint("Vertical", 28),
    Sketcher.Constraint("Horizontal", 29),
    Sketcher.Constraint("Vertical", 30),
    Sketcher.Constraint("Horizontal", 31),
    Sketcher.Constraint("Horizontal", 33),
    Sketcher.Constraint("Vertical", 35),
    Sketcher.Constraint("Horizontal", 37),
    Sketcher.Constraint("Vertical", 39),
    Sketcher.Constraint("Equal", 4, 6),
    Sketcher.Constraint("Equal", 6, 8),
    Sketcher.Constraint("Equal", 8, 10),
    Sketcher.Constraint("Equal", 10, 12),
    Sketcher.Constraint("Equal", 12, 14),
    Sketcher.Constraint("Equal", 14, 16),
    Sketcher.Constraint("Equal", 16, 18),
    Sketcher.Constraint("Equal", 18, 20),
    Sketcher.Constraint("Equal", 20, 22),
    Sketcher.Constraint("Equal", 22, 24),
    Sketcher.Constraint("Equal", 24, 26),
    Sketcher.Constraint("Equal", 26, 32),
    Sketcher.Constraint("Equal", 32, 34),
    Sketcher.Constraint("Equal", 34, 36),
    Sketcher.Constraint("Equal", 36, 38),
    Sketcher.Constraint("Symmetric", 4, 3, 12, 3, -1),
    Sketcher.Constraint("Symmetric", 8, 3, 16, 3, -1),
    Sketcher.Constraint("Symmetric", 20, 3, 32, 3, -1),
    Sketcher.Constraint("Symmetric", 26, 3, 34, 3, -1),
    Sketcher.Constraint("Horizontal", 4, 3, 6, 3),
    Sketcher.Constraint("Horizontal", 8, 3, 10, 3),
    Sketcher.Constraint("Horizontal", 14, 3, 16, 3),
    Sketcher.Constraint("Horizontal", 12, 3, 18, 3),
    Sketcher.Constraint("Horizontal", 6, 3, 20, 3),
    Sketcher.Constraint("Horizontal", 10, 3, 22, 3),
    Sketcher.Constraint("Horizontal", 22, 3, 24, 3),
    Sketcher.Constraint("Horizontal", 20, 3, 26, 3),
    Sketcher.Constraint("Horizontal", 16, 3, 36, 3),
    Sketcher.Constraint("Horizontal", 36, 3, 38, 3),
    Sketcher.Constraint("Horizontal", 26, 3, 4, 2),
    Sketcher.Constraint("Horizontal", 7, 2, 8, 2),
    Sketcher.Constraint("Horizontal", 13, 2, 14, 2),
    Sketcher.Constraint("Horizontal", 17, 2, 18, 2),
    Sketcher.Constraint("Horizontal", 21, 2, 22, 2),
    Sketcher.Constraint("Horizontal", 25, 2, 26, 2),
    Sketcher.Constraint("Horizontal", 19, 2, 32, 2),
    Sketcher.Constraint("Horizontal", 35, 2, 36, 2),
    Sketcher.Constraint("Equal", 19, 23),
    Sketcher.Constraint("Radius", 4, 1.0),
    Sketcher.Constraint("DistanceX", 0, 2, 0, 1, 50.0),
    Sketcher.Constraint("DistanceX", 29, 1, 29, 2, 38.0),
    Sketcher.Constraint("DistanceY", 1, 1, 1, 2, 32.0),
    Sketcher.Constraint("DistanceY", 28, 2, 28, 1, 14.0),
    Sketcher.Constraint("DistanceX", 5, 1, 5, 2, 8.2),
    Sketcher.Constraint("DistanceY", 7, 1, 7, 2, 3.3),
    Sketcher.Constraint("DistanceY", 0, 2, -1, 1, 16.0),
    Sketcher.Constraint("DistanceY", 28, 2, -1, 1, 7.0),
    Sketcher.Constraint("DistanceX", 6, 3, 20, 3, 28.0),
    Sketcher.Constraint("DistanceX", 30, 2, 2, 2, 6.0),
    Sketcher.Constraint("DistanceX", -1, 1, 4, 3, 43.4),
    Sketcher.Constraint("DistanceX", -1, 1, 0, 2, 37.5),
    Sketcher.Constraint("DistanceY", 10, 3, 12, 3, 23.2),
])
sketch4.setExpression("Constraints[102]", "Params.sketch4_radius")
sketch4.setExpression("Constraints[103]", "Params.sketch4_width")
sketch4.setExpression("Constraints[104]", "Params.sketch4_width2")
sketch4.setExpression("Constraints[105]", "Params.sketch4_height")
sketch4.setExpression("Constraints[106]", "Params.sketch4_height2")
pad3 = body3.newObject("PartDesign::Pad", "Pad002")
pad3.Profile = sketch4
pad3.setExpression("Length", "Params.pad3_length")
doc.recompute()

fillet3 = body3.newObject("PartDesign::Fillet", "Fillet002")
fillet3.Base = (pad3, edges_at(pad3, [
    (40.5, 81.5, 7),
    (40.5, 43.5, 7),
    (40.5, 43.5, -7),
    (40.5, 81.5, -7),
    (40.5, 37.5, 16),
    (40.5, 37.5, -16),
    (40.5, 87.5, -16),
    (40.5, 87.5, 16),
]))
fillet3.setExpression("Radius", "Params.fillet3_radius")
body4 = doc.addObject("PartDesign::Body", "Body003")
doc.recompute()

mirroring = doc.addObject("Part::Mirroring", "Mirroring")
mirroring.Source = body3
mirroring.Base = Vector(49.5, 0, 0)
mirroring.Normal = Vector(-1, 0, 0)
body4.BaseFeature = mirroring
doc.recompute()
mirroring.Visibility = False

doc.recompute()
